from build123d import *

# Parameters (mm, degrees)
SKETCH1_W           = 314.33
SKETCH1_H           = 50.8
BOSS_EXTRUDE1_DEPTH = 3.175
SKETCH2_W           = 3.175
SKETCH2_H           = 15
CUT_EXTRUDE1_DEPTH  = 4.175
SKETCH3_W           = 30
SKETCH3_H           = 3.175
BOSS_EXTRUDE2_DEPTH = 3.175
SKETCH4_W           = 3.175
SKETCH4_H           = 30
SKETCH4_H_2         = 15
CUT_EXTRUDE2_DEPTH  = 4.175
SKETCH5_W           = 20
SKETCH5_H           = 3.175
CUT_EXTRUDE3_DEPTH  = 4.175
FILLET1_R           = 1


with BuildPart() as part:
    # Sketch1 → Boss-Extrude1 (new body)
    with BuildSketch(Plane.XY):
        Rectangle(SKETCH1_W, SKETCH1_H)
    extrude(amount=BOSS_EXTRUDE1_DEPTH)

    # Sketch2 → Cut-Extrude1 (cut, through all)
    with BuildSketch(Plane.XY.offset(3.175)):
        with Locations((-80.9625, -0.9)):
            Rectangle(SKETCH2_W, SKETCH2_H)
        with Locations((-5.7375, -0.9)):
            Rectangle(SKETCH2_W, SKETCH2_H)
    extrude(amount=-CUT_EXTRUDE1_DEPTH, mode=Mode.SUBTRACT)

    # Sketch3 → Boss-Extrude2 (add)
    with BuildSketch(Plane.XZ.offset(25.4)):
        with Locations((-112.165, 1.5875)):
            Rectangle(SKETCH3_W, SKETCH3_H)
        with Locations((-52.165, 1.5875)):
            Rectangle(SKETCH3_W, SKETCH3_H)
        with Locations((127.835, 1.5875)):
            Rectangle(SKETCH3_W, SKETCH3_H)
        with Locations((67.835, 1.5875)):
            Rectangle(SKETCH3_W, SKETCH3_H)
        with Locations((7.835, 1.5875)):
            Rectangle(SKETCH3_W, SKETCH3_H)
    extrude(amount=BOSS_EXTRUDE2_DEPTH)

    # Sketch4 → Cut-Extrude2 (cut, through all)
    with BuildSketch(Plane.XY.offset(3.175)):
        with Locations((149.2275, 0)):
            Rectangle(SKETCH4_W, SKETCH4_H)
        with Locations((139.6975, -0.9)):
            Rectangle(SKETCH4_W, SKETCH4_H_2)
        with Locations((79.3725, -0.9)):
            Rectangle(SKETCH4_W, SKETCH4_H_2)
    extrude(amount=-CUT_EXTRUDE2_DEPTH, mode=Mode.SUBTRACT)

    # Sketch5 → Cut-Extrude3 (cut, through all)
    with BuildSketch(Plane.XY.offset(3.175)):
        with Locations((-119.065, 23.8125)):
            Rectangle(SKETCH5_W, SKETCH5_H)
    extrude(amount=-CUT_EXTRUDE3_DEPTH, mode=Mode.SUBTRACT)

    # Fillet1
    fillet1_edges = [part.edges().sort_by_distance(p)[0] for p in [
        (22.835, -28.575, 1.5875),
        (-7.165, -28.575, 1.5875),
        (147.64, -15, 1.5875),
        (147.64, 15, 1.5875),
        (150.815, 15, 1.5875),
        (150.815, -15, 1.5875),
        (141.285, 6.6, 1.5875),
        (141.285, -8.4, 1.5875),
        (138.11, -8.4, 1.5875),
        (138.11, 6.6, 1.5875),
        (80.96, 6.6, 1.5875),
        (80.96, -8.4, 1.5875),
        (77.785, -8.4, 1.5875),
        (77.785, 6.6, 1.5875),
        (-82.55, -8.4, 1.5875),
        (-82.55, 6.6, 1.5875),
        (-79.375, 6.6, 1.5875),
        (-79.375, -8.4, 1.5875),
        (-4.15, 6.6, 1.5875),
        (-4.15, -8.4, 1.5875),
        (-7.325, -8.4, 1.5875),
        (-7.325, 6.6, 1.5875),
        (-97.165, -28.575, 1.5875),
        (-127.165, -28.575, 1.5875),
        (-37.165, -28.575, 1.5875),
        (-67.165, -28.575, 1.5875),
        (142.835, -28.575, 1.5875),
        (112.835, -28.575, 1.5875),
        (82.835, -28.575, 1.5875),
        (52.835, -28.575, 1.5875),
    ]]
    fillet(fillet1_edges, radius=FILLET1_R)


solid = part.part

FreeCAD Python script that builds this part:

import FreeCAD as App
import Part
import Sketcher

V = App.Vector
Q = App.Units.Quantity


def edges_at(feature, points):
    """Names of the edges that pass closest to the given points."""
    edges = feature.Shape.Edges
    near = lambda p: min(range(len(edges)), key=lambda i: edges[i].distToShape(Part.Vertex(*p))[0])
    return sorted({f"Edge{near(p) + 1}" for p in points})

doc = App.newDocument("Part")
body = doc.addObject("PartDesign::Body", "Body")

# Sketch on XY plane
sketch1 = doc.addObject("Sketcher::SketchObject", "Sketch")
body.addObject(sketch1)
sketch1.AttachmentSupport = (doc.XY_Plane, [""])
sketch1.MapMode = "FlatFace"
sketch1.addGeometry(Part.LineSegment(V(-157, 25, 0), V(-157, -25, 0)), False)
sketch1.addGeometry(Part.LineSegment(V(-157, -25, 0), V(157, -25, 0)), False)
sketch1.addGeometry(Part.LineSegment(V(157, -25, 0), V(157, 25, 0)), False)
sketch1.addGeometry(Part.LineSegment(V(157, 25, 0), V(-157, 25, 0)), False)
sketch1.addConstraint(Sketcher.Constraint("Coincident", 0, 2, 1, 1))
sketch1.addConstraint(Sketcher.Constraint("Coincident", 1, 2, 2, 1))
sketch1.addConstraint(Sketcher.Constraint("Coincident", 2, 2, 3, 1))
sketch1.addConstraint(Sketcher.Constraint("Coincident", 3, 2, 0, 1))
sketch1.addConstraint(Sketcher.Constraint("Vertical", 0))
sketch1.addConstraint(Sketcher.Constraint("Horizontal", 1))
sketch1.addConstraint(Sketcher.Constraint("Vertical", 2))
sketch1.addConstraint(Sketcher.Constraint("Horizontal", 3))
sketch1.addConstraint(Sketcher.Constraint("Symmetric", 0, 2, 2, 2, -1, 1))
sketch1.addConstraint(Sketcher.Constraint("DistanceY", 0, 2, 0, 1, Q("50.8 mm")))
sketch1.addConstraint(Sketcher.Constraint("DistanceX", 1, 1, 1, 2, Q("314.33 mm")))
pad1 = doc.addObject("PartDesign::Pad", "Pad")
body.addObject(pad1)
pad1.Profile = sketch1
pad1.Length = 3.175

# Sketch on XY plane
sketch2 = doc.addObject("Sketcher::SketchObject", "Sketch001")
body.addObject(sketch2)
sketch2.AttachmentSupport = (doc.XY_Plane, [""])
sketch2.MapMode = "FlatFace"
sketch2.AttachmentOffset = App.Placement(V(0, 0, 3.175), App.Rotation())
sketch2.addGeometry(Part.LineSegment(V(-82.5, 6.6, 0), V(-82.5, -8.4, 0)), False)
sketch2.addGeometry(Part.LineSegment(V(-82.5, -8.4, 0), V(-79.4, -8.4, 0)), False)
sketch2.addGeometry(Part.LineSegment(V(-79.4, -8.4, 0), V(-79.4, 6.6, 0)), False)
sketch2.addGeometry(Part.LineSegment(V(-79.4, 6.6, 0), V(-82.5, 6.6, 0)), False)
sketch2.addGeometry(Part.LineSegment(V(-7.3, 6.6, 0), V(-7.3, -8.4, 0)), False)
sketch2.addGeometry(Part.LineSegment(V(-7.3, -8.4, 0), V(-4.2, -8.4, 0)), False)
sketch2.addGeometry(Part.LineSegment(V(-4.2, -8.4, 0), V(-4.2, 6.6, 0)), False)
sketch2.addGeometry(Part.LineSegment(V(-4.2, 6.6, 0), V(-7.3, 6.6, 0)), False)
sketch2.addConstraint(Sketcher.Constraint("Coincident", 0, 2, 1, 1))
sketch2.addConstraint(Sketcher.Constraint("Coincident", 1, 2, 2, 1))
sketch2.addConstraint(Sketcher.Constraint("Coincident", 2, 2, 3, 1))
sketch2.addConstraint(Sketcher.Constraint("Coincident", 3, 2, 0, 1))
sketch2.addConstraint(Sketcher.Constraint("Coincident", 4, 2, 5, 1))
sketch2.addConstraint(Sketcher.Constraint("Coincident", 5, 2, 6, 1))
sketch2.addConstraint(Sketcher.Constraint("Coincident", 6, 2, 7, 1))
sketch2.addConstraint(Sketcher.Constraint("Coincident", 7, 2, 4, 1))
sketch2.addConstraint(Sketcher.Constraint("Vertical", 0))
sketch2.addConstraint(Sketcher.Constraint("Horizontal", 1))
sketch2.addConstraint(Sketcher.Constraint("Vertical", 2))
sketch2.addConstraint(Sketcher.Constraint("Horizontal", 3))
sketch2.addConstraint(Sketcher.Constraint("Vertical", 4))
sketch2.addConstraint(Sketcher.Constraint("Horizontal", 5))
sketch2.addConstraint(Sketcher.Constraint("Vertical", 6))
sketch2.addConstraint(Sketcher.Constraint("Horizontal", 7))
sketch2.addConstraint(Sketcher.Constraint("Horizontal", 1, 2, 4, 2))
sketch2.addConstraint(Sketcher.Constraint("Horizontal", 3, 2, 6, 2))
sketch2.addConstraint(Sketcher.Constraint("Equal", 3, 5))
sketch2.addConstraint(Sketcher.Constraint("DistanceY", 0, 2, 0, 1, Q("15 mm")))
sketch2.addConstraint(Sketcher.Constraint("DistanceY", 0, 2, -1, 1, Q("8.4 mm")))
sketch2.addConstraint(Sketcher.Constraint("DistanceX", 0, 2, 5, 2, Q("78.4 mm")))
sketch2.addConstraint(Sketcher.Constraint("DistanceX", 1, 1, 1, 2, Q("3.175 mm")))
sketch2.addConstraint(Sketcher.Constraint("DistanceX", 0, 2, -1, 1, Q("82.55 mm")))
pocket1 = doc.addObject("PartDesign::Pocket", "Pocket")
body.addObject(pocket1)
pocket1.Profile = sketch2
pocket1.Type = "ThroughAll"

# Sketch on XZ plane
sketch3 = doc.addObject("Sketcher::SketchObject", "Sketch002")
body.addObject(sketch3)
sketch3.AttachmentSupport = (doc.XZ_Plane, [""])
sketch3.MapMode = "FlatFace"
sketch3.AttachmentOffset = App.Placement(V(0, 0, 25.4), App.Rotation())
sketch3.addGeometry(Part.LineSegment(V(-127.2, 3.2, 0), V(-127.2, 0, 0)), False)
sketch3.addGeometry(Part.LineSegment(V(-127.2, 0, 0), V(-97.2, 0, 0)), False)
sketch3.addGeometry(Part.LineSegment(V(-97.2, 0, 0), V(-97.2, 3.2, 0)), False)
sketch3.addGeometry(Part.LineSegment(V(-97.2, 3.2, 0), V(-127.2, 3.2, 0)), False)
sketch3.addGeometry(Part.LineSegment(V(-67.2, 3.2, 0), V(-67.2, 0, 0)), False)
sketch3.addGeometry(Part.LineSegment(V(-67.2, 0, 0), V(-37.2, 0, 0)), False)
sketch3.addGeometry(Part.LineSegment(V(-37.2, 0, 0), V(-37.2, 3.2, 0)), False)
sketch3.addGeometry(Part.LineSegment(V(-37.2, 3.2, 0), V(-67.2, 3.2, 0)), False)
sketch3.addGeometry(Part.LineSegment(V(112.8, 3.2, 0), V(112.8, 0, 0)), False)
sketch3.addGeometry(Part.LineSegment(V(112.8, 0, 0), V(142.8, 0, 0)), False)
sketch3.addGeometry(Part.LineSegment(V(142.8, 0, 0), V(142.8, 3.2, 0)), False)
sketch3.addGeometry(Part.LineSegment(V(142.8, 3.2, 0), V(112.8, 3.2, 0)), False)
sketch3.addGeometry(Part.LineSegment(V(52.8, 3.2, 0), V(52.8, 0, 0)), False)
sketch3.addGeometry(Part.LineSegment(V(52.8, 0, 0), V(82.8, 0, 0)), False)
sketch3.addGeometry(Part.LineSegment(V(82.8, 0, 0), V(82.8, 3.2, 0)), False)
sketch3.addGeometry(Part.LineSegment(V(82.8, 3.2, 0), V(52.8, 3.2, 0)), False)
sketch3.addGeometry(Part.LineSegment(V(-7.2, 3.2, 0), V(-7.2, 0, 0)), False)
sketch3.addGeometry(Part.LineSegment(V(-7.2, 0, 0), V(22.8, 0, 0)), False)
sketch3.addGeometry(Part.LineSegment(V(22.8, 0, 0), V(22.8, 3.2, 0)), False)
sketch3.addGeometry(Part.LineSegment(V(22.8, 3.2, 0), V(-7.2, 3.2, 0)), False)
sketch3.addConstraint(Sketcher.Constraint("Coincident", 0, 2, 1, 1))
sketch3.addConstraint(Sketcher.Constraint("Coincident", 1, 2, 2, 1))
sketch3.addConstraint(Sketcher.Constraint("Coincident", 2, 2, 3, 1))
sketch3.addConstraint(Sketcher.Constraint("Coincident", 3, 2, 0, 1))
sketch3.addConstraint(Sketcher.Constraint("Coincident", 4, 2, 5, 1))
sketch3.addConstraint(Sketcher.Constraint("Coincident", 5, 2, 6, 1))
sketch3.addConstraint(Sketcher.Constraint("Coincident", 6, 2, 7, 1))
sketch3.addConstraint(Sketcher.Constraint("Coincident", 7, 2, 4, 1))
sketch3.addConstraint(Sketcher.Constraint("Coincident", 8, 2, 9, 1))
sketch3.addConstraint(Sketcher.Constraint("Coincident", 9, 2, 10, 1))
sketch3.addConstraint(Sketcher.Constraint("Coincident", 10, 2, 11, 1))
sketch3.addConstraint(Sketcher.Constraint("Coincident", 11, 2, 8, 1))
sketch3.addConstraint(Sketcher.Constraint("Coincident", 12, 2, 13, 1))
sketch3.addConstraint(Sketcher.Constraint("Coincident", 13, 2, 14, 1))
sketch3.addConstraint(Sketcher.Constraint("Coincident", 14, 2, 15, 1))
sketch3.addConstraint(Sketcher.Constraint("Coincident", 15, 2, 12, 1))
sketch3.addConstraint(Sketcher.Constraint("Coincident", 16, 2, 17, 1))
sketch3.addConstraint(Sketcher.Constraint("Coincident", 17, 2, 18, 1))
sketch3.addConstraint(Sketcher.Constraint("Coincident", 18, 2, 19, 1))
sketch3.addConstraint(Sketcher.Constraint("Coincident", 19, 2, 16, 1))
sketch3.addConstraint(Sketcher.Constraint("Vertical", 0))
sketch3.addConstraint(Sketcher.Constraint("Horizontal", 1))
sketch3.addConstraint(Sketcher.Constraint("Vertical", 2))
sketch3.addConstraint(Sketcher.Constraint("Horizontal", 3))
sketch3.addConstraint(Sketcher.Constraint("Vertical", 4))
sketch3.addConstraint(Sketcher.Constraint("Horizontal", 5))
sketch3.addConstraint(Sketcher.Constraint("Vertical", 6))
sketch3.addConstraint(Sketcher.Constraint("Horizontal", 7))
sketch3.addConstraint(Sketcher.Constraint("Vertical", 8))
sketch3.addConstraint(Sketcher.Constraint("Horizontal", 9))
sketch3.addConstraint(Sketcher.Constraint("Vertical", 10))
sketch3.addConstraint(Sketcher.Constraint("Horizontal", 11))
sketch3.addConstraint(Sketcher.Constraint("Vertical", 12))
sketch3.addConstraint(Sketcher.Constraint("Horizontal", 13))
sketch3.addConstraint(Sketcher.Constraint("Vertical", 14))
sketch3.addConstraint(Sketcher.Constraint("Horizontal", 15))
sketch3.addConstraint(Sketcher.Constraint("Vertical", 16))
sketch3.addConstraint(Sketcher.Constraint("Horizontal", 17))
sketch3.addConstraint(Sketcher.Constraint("Vertical", 18))
sketch3.addConstraint(Sketcher.Constraint("Horizontal", 19))
sketch3.addConstraint(Sketcher.Constraint("PointOnObject", 0, 2, -1))
sketch3.addConstraint(Sketcher.Constraint("PointOnObject", 4, 2, -1))
sketch3.addConstraint(Sketcher.Constraint("PointOnObject", 8, 2, -1))
sketch3.addConstraint(Sketcher.Constraint("PointOnObject", 12, 2, -1))
sketch3.addConstraint(Sketcher.Constraint("PointOnObject", 16, 2, -1))
sketch3.addConstraint(Sketcher.Constraint("Horizontal", 3, 2, 6, 2))
sketch3.addConstraint(Sketcher.Constraint("Horizontal", 7, 2, 10, 2))
sketch3.addConstraint(Sketcher.Constraint("Horizontal", 11, 2, 14, 2))
sketch3.addConstraint(Sketcher.Constraint("Horizontal", 15, 2, 18, 2))
sketch3.addConstraint(Sketcher.Constraint("Equal", 3, 5))
sketch3.addConstraint(Sketcher.Constraint("Equal", 7, 9))
sketch3.addConstraint(Sketcher.Constraint("Equal", 11, 13))
sketch3.addConstraint(Sketcher.Constraint("Equal", 15, 17))
sketch3.addConstraint(Sketcher.Constraint("DistanceX", 1, 1, 1, 2, Q("30 mm")))
sketch3.addConstraint(Sketcher.Constraint("DistanceX", 1, 2, 4, 2, Q("30 mm")))
sketch3.addConstraint(Sketcher.Constraint("DistanceX", 5, 2, 8, 2, Q("150 mm")))
sketch3.addConstraint(Sketcher.Constraint("DistanceX", 12, 2, 8, 2, Q("60 mm")))
sketch3.addConstraint(Sketcher.Constraint("DistanceX", 5, 2, 16, 2, Q("30 mm")))
sketch3.addConstraint(Sketcher.Constraint("DistanceY", 0, 2, 0, 1, Q("3.175 mm")))
sketch3.addConstraint(Sketcher.Constraint("DistanceX", 0, 2, -1, 1, Q("127.165 mm")))
pad2 = doc.addObject("PartDesign::Pad", "Pad001")
body.addObject(pad2)
pad2.Profile = sketch3
pad2.Length = 3.175

# Sketch on XY plane
sketch4 = doc.addObject("Sketcher::SketchObject", "Sketch003")
body.addObject(sketch4)
sketch4.AttachmentSupport = (doc.XY_Plane, [""])
sketch4.MapMode = "FlatFace"
sketch4.AttachmentOffset = App.Placement(V(0, 0, 3.175), App.Rotation())
sketch4.addGeometry(Part.LineSegment(V(147.6, 15, 0), V(147.6, -15, 0)), False)
sketch4.addGeometry(Part.LineSegment(V(147.6, -15, 0), V(150.8, -15, 0)), False)
sketch4.addGeometry(Part.LineSegment(V(150.8, -15, 0), V(150.8, 15, 0)), False)
sketch4.addGeometry(Part.LineSegment(V(150.8, 15, 0), V(147.6, 15, 0)), False)
sketch4.addGeometry(Part.LineSegment(V(138.1, 6.6, 0), V(138.1, -8.4, 0)), False)
sketch4.addGeometry(Part.LineSegment(V(138.1, -8.4, 0), V(141.3, -8.4, 0)), False)
sketch4.addGeometry(Part.LineSegment(V(141.3, -8.4, 0), V(141.3, 6.6, 0)), False)
sketch4.addGeometry(Part.LineSegment(V(141.3, 6.6, 0), V(138.1, 6.6, 0)), False)
sketch4.addGeometry(Part.LineSegment(V(77.8, 6.6, 0), V(77.8, -8.4, 0)), False)
sketch4.addGeometry(Part.LineSegment(V(77.8, -8.4, 0), V(81, -8.4, 0)), False)
sketch4.addGeometry(Part.LineSegment(V(81, -8.4, 0), V(81, 6.6, 0)), False)
sketch4.addGeometry(Part.LineSegment(V(81, 6.6, 0), V(77.8, 6.6, 0)), False)
sketch4.addConstraint(Sketcher.Constraint("Coincident", 0, 2, 1, 1))
sketch4.addConstraint(Sketcher.Constraint("Coincident", 1, 2, 2, 1))
sketch4.addConstraint(Sketcher.Constraint("Coincident", 2, 2, 3, 1))
sketch4.addConstraint(Sketcher.Constraint("Coincident", 3, 2, 0, 1))
sketch4.addConstraint(Sketcher.Constraint("Coincident", 4, 2, 5, 1))
sketch4.addConstraint(Sketcher.Constraint("Coincident", 5, 2, 6, 1))
sketch4.addConstraint(Sketcher.Constraint("Coincident", 6, 2, 7, 1))
sketch4.addConstraint(Sketcher.Constraint("Coincident", 7, 2, 4, 1))
sketch4.addConstraint(Sketcher.Constraint("Coincident", 8, 2, 9, 1))
sketch4.addConstraint(Sketcher.Constraint("Coincident", 9, 2, 10, 1))
sketch4.addConstraint(Sketcher.Constraint("Coincident", 10, 2, 11, 1))
sketch4.addConstraint(Sketcher.Constraint("Coincident", 11, 2, 8, 1))
sketch4.addConstraint(Sketcher.Constraint("Vertical", 0))
sketch4.addConstraint(Sketcher.Constraint("Horizontal", 1))
sketch4.addConstraint(Sketcher.Constraint("Vertical", 2))
sketch4.addConstraint(Sketcher.Constraint("Horizontal", 3))
sketch4.addConstraint(Sketcher.Constraint("Vertical", 4))
sketch4.addConstraint(Sketcher.Constraint("Horizontal", 5))
sketch4.addConstraint(Sketcher.Constraint("Vertical", 6))
sketch4.addConstraint(Sketcher.Constraint("Horizontal", 7))
sketch4.addConstraint(Sketcher.Constraint("Vertical", 8))
sketch4.addConstraint(Sketcher.Constraint("Horizontal", 9))
sketch4.addConstraint(Sketcher.Constraint("Vertical", 10))
sketch4.addConstraint(Sketcher.Constraint("Horizontal", 11))
sketch4.addConstraint(Sketcher.Constraint("Horizontal", 5, 2, 8, 2))
sketch4.addConstraint(Sketcher.Constraint("Horizontal", 7, 2, 10, 2))
sketch4.addConstraint(Sketcher.Constraint("Equal", 3, 5))
sketch4.addConstraint(Sketcher.Constraint("Equal", 7, 9))
sketch4.addConstraint(Sketcher.Constraint("DistanceY", 0, 2, 0, 1, Q("30 mm")))
sketch4.addConstraint(Sketcher.Constraint("DistanceY", 4, 2, 4, 1, Q("15 mm")))
sketch4.addConstraint(Sketcher.Constraint("DistanceY", 0, 2, -1, 1, Q("15 mm")))
sketch4.addConstraint(Sketcher.Constraint("DistanceY", 4, 2, -1, 1, Q("8.4 mm")))
sketch4.addConstraint(Sketcher.Constraint("DistanceX", 8, 2, 5, 2, Q("63.5 mm")))
sketch4.addConstraint(Sketcher.Constraint("DistanceX", 1, 1, 1, 2, Q("3.175 mm")))
sketch4.addConstraint(Sketcher.Constraint("DistanceX", -1, 1, 0, 2, Q("147.64 mm")))
sketch4.addConstraint(Sketcher.Constraint("DistanceX", -1, 1, 4, 2, Q("138.11 mm")))
pocket2 = doc.addObject("PartDesign::Pocket", "Pocket001")
body.addObject(pocket2)
pocket2.Profile = sketch4
pocket2.Type = "ThroughAll"

# Sketch on XY plane
sketch5 = doc.addObject("Sketcher::SketchObject", "Sketch004")
body.addObject(sketch5)
sketch5.AttachmentSupport = (doc.XY_Plane, [""])
sketch5.MapMode = "FlatFace"
sketch5.AttachmentOffset = App.Placement(V(0, 0, 3.175), App.Rotation())
sketch5.addGeometry(Part.LineSegment(V(-129.1, 25.4, 0), V(-129.1, 22.2, 0)), False)
sketch5.addGeometry(Part.LineSegment(V(-129.1, 22.2, 0), V(-109.1, 22.2, 0)), False)
sketch5.addGeometry(Part.LineSegment(V(-109.1, 22.2, 0), V(-109.1, 25.4, 0)), False)
sketch5.addGeometry(Part.LineSegment(V(-109.1, 25.4, 0), V(-129.1, 25.4, 0)), False)
sketch5.addConstraint(Sketcher.Constraint("Coincident", 0, 2, 1, 1))
sketch5.addConstraint(Sketcher.Constraint("Coincident", 1, 2, 2, 1))
sketch5.addConstraint(Sketcher.Constraint("Coincident", 2, 2, 3, 1))
sketch5.addConstraint(Sketcher.Constraint("Coincident", 3, 2, 0, 1))
sketch5.addConstraint(Sketcher.Constraint("Vertical", 0))
sketch5.addConstraint(Sketcher.Constraint("Horizontal", 1))
sketch5.addConstraint(Sketcher.Constraint("Vertical", 2))
sketch5.addConstraint(Sketcher.Constraint("Horizontal", 3))
sketch5.addConstraint(Sketcher.Constraint("DistanceX", 1, 1, 1, 2, Q("20 mm")))
sketch5.addConstraint(Sketcher.Constraint("DistanceY", -1, 1, 2, 2, Q("25.4 mm")))
sketch5.addConstraint(Sketcher.Constraint("DistanceY", 0, 2, 0, 1, Q("3.175 mm")))
sketch5.addConstraint(Sketcher.Constraint("DistanceX", 0, 2, -1, 1, Q("129.065 mm")))
pocket3 = doc.addObject("PartDesign::Pocket", "Pocket002")
body.addObject(pocket3)
pocket3.Profile = sketch5
pocket3.Type = "ThroughAll"
doc.recompute()

fillet = doc.addObject("PartDesign::Fillet", "Fillet")
body.addObject(fillet)
fillet.Base = (pocket3, edges_at(pocket3, [
    (22.835, -28.575, 1.587),
    (-7.165, -28.575, 1.587),
    (147.64, -15, 1.587),
    (147.64, 15, 1.587),
    (150.815, 15, 1.587),
    (150.815, -15, 1.587),
    (141.285, 6.6, 1.587),
    (141.285, -8.4, 1.587),
    (138.11, -8.4, 1.587),
    (138.11, 6.6, 1.587),
    (80.96, 6.6, 1.587),
    (80.96, -8.4, 1.587),
    (77.785, -8.4, 1.587),
    (77.785, 6.6, 1.587),
    (-82.55, -8.4, 1.587),
    (-82.55, 6.6, 1.587),
    (-79.375, 6.6, 1.587),
    (-79.375, -8.4, 1.587),
    (-4.15, 6.6, 1.587),
    (-4.15, -8.4, 1.587),
    (-7.325, -8.4, 1.587),
    (-7.325, 6.6, 1.587),
    (-97.165, -28.575, 1.587),
    (-127.165, -28.575, 1.587),
    (-37.165, -28.575, 1.587),
    (-67.165, -28.575, 1.587),
    (142.835, -28.575, 1.587),
    (112.835, -28.575, 1.587),
    (82.835, -28.575, 1.587),
    (52.835, -28.575, 1.587),
]))
fillet.Radius = 1

doc.recompute()
